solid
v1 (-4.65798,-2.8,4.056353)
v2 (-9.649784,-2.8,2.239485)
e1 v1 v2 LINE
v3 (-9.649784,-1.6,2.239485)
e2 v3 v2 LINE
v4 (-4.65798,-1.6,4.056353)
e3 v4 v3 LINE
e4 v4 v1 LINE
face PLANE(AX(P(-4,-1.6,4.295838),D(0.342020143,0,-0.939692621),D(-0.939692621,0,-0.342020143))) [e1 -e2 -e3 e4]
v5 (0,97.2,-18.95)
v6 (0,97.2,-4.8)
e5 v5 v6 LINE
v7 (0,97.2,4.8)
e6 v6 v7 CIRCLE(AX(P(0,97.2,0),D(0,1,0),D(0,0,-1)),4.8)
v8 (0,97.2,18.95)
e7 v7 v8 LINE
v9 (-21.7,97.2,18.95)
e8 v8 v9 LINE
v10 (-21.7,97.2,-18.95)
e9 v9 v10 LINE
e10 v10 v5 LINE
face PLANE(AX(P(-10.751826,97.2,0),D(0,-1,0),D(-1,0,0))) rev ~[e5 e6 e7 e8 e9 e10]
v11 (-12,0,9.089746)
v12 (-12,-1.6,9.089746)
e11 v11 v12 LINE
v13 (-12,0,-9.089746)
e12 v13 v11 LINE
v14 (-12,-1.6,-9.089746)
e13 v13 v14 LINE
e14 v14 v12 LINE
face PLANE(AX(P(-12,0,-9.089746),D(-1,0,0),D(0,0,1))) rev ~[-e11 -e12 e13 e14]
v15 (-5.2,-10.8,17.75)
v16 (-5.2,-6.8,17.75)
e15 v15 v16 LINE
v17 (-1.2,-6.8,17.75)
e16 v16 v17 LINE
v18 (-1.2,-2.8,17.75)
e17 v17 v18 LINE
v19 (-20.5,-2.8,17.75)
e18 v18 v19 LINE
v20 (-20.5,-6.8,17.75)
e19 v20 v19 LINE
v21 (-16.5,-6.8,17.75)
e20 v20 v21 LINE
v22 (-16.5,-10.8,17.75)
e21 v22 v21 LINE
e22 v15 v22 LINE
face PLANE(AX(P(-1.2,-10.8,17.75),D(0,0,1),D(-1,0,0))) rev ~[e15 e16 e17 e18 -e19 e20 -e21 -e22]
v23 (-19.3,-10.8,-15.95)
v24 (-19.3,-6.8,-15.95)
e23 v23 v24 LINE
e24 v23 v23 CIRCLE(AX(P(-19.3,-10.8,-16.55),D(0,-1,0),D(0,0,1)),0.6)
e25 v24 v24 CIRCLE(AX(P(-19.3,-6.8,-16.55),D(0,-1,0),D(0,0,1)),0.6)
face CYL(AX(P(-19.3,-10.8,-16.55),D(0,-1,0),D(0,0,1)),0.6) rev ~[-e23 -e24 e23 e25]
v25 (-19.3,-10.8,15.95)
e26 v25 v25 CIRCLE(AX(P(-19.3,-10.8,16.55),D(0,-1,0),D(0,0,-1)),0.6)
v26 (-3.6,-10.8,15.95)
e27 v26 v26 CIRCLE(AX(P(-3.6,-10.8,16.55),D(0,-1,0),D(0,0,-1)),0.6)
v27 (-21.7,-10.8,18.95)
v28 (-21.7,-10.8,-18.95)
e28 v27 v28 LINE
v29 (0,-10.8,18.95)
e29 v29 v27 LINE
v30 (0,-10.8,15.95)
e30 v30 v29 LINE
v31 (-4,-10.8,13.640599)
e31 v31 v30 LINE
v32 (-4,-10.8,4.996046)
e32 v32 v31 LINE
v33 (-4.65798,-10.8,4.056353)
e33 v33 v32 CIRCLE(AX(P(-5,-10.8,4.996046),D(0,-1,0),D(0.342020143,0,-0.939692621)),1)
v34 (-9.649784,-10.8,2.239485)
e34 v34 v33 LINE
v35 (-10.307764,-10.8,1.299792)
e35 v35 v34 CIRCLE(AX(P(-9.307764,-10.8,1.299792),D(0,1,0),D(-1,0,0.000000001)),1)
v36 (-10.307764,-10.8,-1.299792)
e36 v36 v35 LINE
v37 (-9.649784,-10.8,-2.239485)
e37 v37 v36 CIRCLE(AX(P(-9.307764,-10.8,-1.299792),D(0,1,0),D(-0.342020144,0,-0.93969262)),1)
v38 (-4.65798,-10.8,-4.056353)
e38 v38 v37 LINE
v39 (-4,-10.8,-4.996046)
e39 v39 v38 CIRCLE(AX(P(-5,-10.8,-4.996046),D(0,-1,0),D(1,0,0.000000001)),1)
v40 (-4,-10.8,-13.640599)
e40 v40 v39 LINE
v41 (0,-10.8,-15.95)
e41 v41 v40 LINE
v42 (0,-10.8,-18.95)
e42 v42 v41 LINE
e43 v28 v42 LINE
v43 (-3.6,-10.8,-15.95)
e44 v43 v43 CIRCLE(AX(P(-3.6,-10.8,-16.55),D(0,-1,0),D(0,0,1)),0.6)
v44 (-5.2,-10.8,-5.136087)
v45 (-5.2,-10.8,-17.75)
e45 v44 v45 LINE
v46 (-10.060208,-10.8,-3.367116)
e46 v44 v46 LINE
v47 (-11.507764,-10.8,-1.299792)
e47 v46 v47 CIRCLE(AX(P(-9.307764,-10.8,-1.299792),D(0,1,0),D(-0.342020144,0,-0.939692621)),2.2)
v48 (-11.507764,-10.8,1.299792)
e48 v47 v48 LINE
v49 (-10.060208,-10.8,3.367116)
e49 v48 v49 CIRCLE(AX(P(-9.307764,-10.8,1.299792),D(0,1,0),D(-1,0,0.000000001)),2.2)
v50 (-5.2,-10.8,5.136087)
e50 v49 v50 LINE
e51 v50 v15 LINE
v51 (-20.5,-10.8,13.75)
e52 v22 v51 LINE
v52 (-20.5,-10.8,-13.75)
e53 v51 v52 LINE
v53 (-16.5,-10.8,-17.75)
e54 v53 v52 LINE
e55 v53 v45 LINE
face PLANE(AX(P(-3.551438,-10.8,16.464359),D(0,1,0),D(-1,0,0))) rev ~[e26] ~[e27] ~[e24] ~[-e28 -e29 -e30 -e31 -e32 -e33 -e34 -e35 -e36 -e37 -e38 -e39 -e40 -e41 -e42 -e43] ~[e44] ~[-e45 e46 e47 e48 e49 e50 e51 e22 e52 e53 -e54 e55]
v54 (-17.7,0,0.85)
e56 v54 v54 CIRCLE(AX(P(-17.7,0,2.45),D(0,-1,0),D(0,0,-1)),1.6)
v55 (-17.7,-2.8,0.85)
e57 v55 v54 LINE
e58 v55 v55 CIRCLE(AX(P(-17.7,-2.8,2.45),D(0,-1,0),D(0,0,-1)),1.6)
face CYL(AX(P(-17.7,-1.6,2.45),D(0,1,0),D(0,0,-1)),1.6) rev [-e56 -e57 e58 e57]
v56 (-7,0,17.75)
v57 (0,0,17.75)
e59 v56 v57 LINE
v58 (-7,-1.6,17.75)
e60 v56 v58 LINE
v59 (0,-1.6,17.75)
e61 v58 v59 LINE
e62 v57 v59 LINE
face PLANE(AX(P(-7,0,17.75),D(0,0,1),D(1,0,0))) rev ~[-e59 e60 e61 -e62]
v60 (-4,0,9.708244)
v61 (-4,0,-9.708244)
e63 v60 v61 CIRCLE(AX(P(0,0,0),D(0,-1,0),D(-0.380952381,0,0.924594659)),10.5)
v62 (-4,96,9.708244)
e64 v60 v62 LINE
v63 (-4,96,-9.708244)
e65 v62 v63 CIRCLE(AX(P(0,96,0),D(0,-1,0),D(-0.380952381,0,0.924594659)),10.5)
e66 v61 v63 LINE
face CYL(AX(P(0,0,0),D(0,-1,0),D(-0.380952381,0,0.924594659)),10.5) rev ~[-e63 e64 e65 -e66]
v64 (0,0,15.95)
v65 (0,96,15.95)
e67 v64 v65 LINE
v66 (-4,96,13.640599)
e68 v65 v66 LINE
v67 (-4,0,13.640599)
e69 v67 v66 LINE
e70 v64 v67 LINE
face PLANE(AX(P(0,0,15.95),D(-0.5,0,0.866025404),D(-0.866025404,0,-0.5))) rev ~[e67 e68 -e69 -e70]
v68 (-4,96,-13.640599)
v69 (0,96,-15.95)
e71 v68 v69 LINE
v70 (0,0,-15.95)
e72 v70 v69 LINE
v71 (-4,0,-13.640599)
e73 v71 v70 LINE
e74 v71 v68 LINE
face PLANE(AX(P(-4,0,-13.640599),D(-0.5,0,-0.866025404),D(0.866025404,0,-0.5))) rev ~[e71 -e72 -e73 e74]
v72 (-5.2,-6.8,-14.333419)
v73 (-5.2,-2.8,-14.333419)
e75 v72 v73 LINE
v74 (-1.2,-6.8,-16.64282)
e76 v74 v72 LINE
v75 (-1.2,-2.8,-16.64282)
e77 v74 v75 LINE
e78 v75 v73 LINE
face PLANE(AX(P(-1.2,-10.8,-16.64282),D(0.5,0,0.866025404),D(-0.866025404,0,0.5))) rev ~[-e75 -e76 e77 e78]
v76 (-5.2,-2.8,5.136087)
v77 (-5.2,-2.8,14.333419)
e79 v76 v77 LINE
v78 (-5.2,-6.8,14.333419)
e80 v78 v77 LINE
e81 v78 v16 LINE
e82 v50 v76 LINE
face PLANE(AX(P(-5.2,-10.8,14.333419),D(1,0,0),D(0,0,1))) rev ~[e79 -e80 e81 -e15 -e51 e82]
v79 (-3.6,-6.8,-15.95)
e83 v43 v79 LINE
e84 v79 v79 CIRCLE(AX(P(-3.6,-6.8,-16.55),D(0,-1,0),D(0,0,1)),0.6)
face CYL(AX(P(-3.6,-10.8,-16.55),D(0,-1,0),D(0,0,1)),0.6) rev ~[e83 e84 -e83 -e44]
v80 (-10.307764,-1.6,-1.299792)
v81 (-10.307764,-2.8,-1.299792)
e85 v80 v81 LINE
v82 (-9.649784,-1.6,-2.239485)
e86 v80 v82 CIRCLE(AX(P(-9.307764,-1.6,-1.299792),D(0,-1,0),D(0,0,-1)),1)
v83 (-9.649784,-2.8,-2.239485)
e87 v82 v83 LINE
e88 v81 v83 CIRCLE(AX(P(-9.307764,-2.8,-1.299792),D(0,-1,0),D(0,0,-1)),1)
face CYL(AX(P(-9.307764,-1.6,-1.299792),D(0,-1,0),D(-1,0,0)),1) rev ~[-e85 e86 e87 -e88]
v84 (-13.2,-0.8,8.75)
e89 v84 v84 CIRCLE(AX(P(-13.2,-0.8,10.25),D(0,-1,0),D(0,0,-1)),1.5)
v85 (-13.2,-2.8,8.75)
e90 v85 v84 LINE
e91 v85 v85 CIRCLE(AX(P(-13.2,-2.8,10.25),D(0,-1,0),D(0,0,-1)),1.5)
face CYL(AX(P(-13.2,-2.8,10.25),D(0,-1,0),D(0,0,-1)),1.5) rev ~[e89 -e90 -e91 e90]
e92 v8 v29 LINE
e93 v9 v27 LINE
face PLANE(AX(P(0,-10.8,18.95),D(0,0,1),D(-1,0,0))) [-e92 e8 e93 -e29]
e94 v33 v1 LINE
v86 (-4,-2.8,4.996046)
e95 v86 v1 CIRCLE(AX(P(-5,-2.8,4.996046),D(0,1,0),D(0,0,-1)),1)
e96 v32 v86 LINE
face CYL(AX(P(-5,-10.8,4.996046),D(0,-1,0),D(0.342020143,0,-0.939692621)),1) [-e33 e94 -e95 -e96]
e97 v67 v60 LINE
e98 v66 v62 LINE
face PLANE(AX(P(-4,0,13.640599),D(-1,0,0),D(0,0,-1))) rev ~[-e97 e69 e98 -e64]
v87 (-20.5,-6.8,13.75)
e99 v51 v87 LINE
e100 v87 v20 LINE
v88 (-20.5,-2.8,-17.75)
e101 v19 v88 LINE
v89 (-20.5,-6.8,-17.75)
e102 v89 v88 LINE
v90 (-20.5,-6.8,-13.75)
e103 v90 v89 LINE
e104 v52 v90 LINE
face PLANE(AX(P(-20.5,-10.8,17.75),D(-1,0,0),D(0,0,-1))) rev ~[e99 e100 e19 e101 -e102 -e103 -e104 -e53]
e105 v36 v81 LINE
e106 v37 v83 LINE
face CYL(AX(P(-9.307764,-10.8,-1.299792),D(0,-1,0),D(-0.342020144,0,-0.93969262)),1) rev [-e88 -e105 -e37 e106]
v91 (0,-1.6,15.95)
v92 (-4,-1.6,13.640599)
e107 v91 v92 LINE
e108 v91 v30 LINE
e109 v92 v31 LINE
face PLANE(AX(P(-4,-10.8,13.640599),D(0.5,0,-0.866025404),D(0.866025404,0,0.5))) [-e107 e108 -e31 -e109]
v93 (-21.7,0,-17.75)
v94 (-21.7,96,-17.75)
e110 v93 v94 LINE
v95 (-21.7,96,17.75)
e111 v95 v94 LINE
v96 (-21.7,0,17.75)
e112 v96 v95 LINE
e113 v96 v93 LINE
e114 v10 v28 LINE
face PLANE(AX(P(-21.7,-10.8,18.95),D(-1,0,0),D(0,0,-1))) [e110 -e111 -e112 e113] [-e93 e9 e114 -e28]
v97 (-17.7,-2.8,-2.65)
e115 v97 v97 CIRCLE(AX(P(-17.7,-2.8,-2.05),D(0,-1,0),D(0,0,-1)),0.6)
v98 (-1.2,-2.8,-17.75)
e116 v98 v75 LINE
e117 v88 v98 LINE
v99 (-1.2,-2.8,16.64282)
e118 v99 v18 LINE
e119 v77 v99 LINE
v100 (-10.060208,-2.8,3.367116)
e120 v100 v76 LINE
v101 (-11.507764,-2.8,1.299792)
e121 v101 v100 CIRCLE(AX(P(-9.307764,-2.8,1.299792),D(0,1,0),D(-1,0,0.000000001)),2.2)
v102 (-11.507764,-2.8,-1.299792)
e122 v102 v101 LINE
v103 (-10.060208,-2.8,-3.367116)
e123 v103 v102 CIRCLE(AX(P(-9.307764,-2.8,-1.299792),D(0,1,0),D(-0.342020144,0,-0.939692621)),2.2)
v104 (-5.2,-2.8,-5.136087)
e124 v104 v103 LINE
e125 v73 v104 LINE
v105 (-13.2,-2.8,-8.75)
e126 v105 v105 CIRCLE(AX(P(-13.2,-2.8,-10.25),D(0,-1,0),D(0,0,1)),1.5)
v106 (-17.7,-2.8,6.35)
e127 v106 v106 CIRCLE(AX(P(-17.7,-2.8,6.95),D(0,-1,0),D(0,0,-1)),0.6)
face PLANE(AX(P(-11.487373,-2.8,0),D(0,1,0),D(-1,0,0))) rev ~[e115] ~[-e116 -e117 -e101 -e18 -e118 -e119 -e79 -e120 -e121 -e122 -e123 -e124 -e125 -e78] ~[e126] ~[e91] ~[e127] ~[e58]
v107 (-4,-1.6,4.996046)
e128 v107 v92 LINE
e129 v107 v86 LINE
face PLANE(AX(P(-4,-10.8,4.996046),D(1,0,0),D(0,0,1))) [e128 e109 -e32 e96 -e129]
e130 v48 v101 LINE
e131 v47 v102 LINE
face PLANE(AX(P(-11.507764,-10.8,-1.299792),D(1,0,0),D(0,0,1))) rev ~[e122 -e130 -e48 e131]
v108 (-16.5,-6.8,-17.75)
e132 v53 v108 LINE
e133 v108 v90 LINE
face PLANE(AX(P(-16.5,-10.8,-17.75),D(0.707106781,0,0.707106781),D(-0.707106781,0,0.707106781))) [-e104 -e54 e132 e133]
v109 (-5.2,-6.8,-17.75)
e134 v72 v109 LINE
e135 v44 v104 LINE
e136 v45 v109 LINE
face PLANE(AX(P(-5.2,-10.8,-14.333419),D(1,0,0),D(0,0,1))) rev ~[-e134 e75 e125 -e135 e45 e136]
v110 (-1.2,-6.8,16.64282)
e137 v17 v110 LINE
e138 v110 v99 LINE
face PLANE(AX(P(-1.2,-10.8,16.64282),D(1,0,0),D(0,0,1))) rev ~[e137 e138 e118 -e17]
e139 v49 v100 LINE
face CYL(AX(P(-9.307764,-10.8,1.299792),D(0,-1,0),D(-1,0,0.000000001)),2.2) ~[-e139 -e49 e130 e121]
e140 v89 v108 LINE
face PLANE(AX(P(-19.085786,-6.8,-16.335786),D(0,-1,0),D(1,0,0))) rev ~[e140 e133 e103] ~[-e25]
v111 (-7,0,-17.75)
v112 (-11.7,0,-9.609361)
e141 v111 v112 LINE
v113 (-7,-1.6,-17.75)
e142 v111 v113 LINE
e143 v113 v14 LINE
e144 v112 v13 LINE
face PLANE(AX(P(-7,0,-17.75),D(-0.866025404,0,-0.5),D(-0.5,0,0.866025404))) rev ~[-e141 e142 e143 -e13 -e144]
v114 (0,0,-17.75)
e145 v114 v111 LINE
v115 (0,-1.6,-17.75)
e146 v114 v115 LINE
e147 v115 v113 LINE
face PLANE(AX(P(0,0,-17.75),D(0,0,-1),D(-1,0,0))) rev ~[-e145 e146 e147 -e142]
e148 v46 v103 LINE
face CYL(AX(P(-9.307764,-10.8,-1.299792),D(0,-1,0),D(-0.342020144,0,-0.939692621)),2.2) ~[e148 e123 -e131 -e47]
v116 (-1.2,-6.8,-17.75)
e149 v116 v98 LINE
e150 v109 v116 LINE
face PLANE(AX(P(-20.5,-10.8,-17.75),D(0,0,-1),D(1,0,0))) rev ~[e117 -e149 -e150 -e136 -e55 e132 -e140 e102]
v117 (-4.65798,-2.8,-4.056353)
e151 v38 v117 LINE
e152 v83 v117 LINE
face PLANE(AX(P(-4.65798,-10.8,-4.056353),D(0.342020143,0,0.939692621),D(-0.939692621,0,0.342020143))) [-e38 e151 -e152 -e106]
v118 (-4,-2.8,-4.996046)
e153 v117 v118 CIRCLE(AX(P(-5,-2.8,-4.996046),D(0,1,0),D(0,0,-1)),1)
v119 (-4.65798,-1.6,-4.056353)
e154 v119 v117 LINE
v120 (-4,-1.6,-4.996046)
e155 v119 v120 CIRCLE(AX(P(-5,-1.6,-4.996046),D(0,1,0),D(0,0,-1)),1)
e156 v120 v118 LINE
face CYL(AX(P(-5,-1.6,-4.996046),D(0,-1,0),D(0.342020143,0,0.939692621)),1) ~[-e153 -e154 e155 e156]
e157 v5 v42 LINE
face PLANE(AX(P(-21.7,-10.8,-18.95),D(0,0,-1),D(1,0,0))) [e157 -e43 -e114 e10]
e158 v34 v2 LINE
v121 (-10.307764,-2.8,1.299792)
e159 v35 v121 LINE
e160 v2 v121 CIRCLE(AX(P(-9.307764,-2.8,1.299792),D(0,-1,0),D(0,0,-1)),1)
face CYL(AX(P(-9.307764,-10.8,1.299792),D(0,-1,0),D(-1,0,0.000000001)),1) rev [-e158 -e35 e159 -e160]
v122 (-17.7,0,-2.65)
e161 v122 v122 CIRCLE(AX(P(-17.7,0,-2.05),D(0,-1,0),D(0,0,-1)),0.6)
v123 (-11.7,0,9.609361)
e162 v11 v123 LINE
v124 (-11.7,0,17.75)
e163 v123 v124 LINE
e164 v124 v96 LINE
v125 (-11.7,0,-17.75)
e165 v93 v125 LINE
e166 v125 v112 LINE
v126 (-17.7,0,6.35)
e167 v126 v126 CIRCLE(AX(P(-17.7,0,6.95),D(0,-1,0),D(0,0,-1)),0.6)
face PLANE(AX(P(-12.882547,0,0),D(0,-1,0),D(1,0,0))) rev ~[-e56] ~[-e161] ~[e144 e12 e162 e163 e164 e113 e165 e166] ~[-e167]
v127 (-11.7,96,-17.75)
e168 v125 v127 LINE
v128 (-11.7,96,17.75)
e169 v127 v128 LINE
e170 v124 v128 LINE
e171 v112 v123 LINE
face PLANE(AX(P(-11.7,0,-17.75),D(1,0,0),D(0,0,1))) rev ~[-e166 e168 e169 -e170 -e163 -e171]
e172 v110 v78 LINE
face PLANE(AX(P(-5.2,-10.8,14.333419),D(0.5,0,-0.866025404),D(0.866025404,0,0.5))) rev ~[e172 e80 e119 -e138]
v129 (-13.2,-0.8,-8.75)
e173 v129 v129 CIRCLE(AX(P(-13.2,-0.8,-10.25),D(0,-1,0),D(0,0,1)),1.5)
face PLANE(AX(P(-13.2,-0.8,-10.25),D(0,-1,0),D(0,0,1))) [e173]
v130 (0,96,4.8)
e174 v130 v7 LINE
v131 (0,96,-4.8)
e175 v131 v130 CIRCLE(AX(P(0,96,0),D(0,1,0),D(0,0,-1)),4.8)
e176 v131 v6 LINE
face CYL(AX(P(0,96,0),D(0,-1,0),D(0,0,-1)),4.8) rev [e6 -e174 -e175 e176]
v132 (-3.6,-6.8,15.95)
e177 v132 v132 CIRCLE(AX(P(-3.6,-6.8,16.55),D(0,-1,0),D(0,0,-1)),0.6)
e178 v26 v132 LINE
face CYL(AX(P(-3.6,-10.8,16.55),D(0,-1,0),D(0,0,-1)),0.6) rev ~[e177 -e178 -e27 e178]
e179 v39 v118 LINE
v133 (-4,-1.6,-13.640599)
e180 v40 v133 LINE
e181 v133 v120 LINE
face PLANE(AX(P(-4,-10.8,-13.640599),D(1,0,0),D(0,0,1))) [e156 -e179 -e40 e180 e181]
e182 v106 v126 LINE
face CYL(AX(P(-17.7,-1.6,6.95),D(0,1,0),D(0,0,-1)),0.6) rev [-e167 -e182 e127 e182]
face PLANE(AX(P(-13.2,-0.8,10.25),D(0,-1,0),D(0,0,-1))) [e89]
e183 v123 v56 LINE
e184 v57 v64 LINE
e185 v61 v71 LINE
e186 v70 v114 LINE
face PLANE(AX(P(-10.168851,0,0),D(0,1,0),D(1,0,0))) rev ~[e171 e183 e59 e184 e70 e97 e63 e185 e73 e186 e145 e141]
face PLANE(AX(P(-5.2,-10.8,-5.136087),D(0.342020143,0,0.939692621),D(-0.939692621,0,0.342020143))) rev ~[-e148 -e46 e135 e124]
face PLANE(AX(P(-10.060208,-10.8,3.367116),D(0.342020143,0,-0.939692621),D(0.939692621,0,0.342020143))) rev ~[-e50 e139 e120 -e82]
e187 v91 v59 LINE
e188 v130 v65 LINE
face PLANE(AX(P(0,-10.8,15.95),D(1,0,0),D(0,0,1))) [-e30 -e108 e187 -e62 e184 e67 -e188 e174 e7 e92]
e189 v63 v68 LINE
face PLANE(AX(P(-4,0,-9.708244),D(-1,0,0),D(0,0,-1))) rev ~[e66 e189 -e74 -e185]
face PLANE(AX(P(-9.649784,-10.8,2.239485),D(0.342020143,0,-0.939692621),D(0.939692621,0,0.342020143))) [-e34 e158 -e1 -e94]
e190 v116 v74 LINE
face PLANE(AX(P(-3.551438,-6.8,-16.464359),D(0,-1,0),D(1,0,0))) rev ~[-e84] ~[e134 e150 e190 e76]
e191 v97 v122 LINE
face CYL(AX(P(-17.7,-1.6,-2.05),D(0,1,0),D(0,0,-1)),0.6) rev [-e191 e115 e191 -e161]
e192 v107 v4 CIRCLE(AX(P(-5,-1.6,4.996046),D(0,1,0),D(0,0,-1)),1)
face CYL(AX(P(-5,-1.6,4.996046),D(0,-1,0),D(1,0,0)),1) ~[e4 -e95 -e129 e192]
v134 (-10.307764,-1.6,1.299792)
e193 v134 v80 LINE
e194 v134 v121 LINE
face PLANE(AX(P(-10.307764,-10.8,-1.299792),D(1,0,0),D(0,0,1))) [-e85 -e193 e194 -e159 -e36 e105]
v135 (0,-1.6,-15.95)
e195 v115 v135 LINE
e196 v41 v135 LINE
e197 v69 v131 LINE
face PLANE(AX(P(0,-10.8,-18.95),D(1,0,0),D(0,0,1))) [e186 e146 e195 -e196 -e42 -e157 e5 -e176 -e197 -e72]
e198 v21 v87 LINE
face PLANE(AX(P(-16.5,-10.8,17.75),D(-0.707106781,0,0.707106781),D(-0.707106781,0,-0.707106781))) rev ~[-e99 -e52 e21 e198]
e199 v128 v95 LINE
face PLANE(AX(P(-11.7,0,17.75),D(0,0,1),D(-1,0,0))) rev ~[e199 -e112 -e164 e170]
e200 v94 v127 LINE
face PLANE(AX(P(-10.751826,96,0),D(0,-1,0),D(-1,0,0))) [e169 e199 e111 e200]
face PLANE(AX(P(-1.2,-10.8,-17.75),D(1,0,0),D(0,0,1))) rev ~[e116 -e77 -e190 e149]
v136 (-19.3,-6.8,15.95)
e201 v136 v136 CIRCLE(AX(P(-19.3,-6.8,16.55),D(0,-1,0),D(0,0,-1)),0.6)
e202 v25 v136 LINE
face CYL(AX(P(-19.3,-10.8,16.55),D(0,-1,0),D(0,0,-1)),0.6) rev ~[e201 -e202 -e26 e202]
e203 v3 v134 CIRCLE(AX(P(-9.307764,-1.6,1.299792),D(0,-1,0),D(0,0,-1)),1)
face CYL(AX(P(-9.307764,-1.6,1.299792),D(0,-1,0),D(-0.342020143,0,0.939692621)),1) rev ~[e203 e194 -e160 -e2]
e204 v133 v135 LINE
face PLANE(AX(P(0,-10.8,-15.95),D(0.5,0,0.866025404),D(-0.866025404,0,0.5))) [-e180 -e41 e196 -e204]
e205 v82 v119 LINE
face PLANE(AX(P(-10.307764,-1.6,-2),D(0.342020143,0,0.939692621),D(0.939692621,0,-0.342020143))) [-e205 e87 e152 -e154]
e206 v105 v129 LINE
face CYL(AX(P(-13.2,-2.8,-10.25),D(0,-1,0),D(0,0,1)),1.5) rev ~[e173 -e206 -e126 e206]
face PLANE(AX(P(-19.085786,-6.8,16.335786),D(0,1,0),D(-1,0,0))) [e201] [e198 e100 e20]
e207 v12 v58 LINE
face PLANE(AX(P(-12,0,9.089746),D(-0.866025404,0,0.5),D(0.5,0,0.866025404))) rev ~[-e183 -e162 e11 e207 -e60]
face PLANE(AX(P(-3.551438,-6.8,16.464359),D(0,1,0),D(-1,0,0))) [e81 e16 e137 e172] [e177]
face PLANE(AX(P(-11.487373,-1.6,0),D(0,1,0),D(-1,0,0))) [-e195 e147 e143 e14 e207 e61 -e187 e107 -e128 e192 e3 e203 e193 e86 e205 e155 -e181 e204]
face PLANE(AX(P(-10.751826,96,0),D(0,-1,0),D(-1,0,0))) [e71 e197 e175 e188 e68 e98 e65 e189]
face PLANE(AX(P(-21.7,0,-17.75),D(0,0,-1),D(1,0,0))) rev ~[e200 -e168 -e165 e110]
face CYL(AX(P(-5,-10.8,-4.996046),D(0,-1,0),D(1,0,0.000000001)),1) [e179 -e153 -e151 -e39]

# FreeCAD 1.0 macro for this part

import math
import FreeCAD as App
import Part
import Sketcher

V = App.Vector
Q = App.Units.Quantity


def edges_at(feature, points):
    """Names of the edges that pass closest to the given points."""
    edges = feature.Shape.Edges
    near = lambda p: min(range(len(edges)), key=lambda i: edges[i].distToShape(Part.Vertex(*p))[0])
    return sorted({f"Edge{near(p) + 1}" for p in points})


def add_polygon(sketch, points):
    """Adds a closed chain of lines whose ends are joined by coincident constraints."""
    first, n = sketch.GeometryCount, len(points)
    for a, b in zip(points, points[1:] + points[:1]):
        sketch.addGeometry(Part.LineSegment(App.Vector(*a, 0), App.Vector(*b, 0)), False)
    for i in range(n):
        sketch.addConstraint(Sketcher.Constraint("Coincident", first + i, 2, first + (i + 1) % n, 1))

doc = App.newDocument("Part")
body = doc.addObject("PartDesign::Body", "Body")

sketch1 = body.newObject("Sketcher::SketchObject", "Sketch")
sketch1.AttachmentSupport = (doc.getObject("XZ_Plane"), [""])
sketch1.MapMode = "FlatFace"
sketch1.addGeometry(Part.LineSegment(V(0, 18.9, 0), V(0, 15.9, 0)), False)
sketch1.addGeometry(Part.LineSegment(V(0, 15.9, 0), V(-4, 13.6, 0)), False)
sketch1.addGeometry(Part.LineSegment(V(-4, 13.6, 0), V(-4, 9.7, 0)), False)
sketch1.addGeometry(Part.ArcOfCircle(Part.Circle(V(0, 0, 0), V(0, 0, 1), 10.5), math.radians(112), math.radians(248)), False)
sketch1.addGeometry(Part.LineSegment(V(-4, -9.7, 0), V(-4, -13.6, 0)), False)
sketch1.addGeometry(Part.LineSegment(V(-4, -13.6, 0), V(0, -15.9, 0)), False)
sketch1.addGeometry(Part.LineSegment(V(0, -15.9, 0), V(0, -18.9, 0)), False)
sketch1.addGeometry(Part.LineSegment(V(0, -18.9, 0), V(-21.7, -18.9, 0)), False)
sketch1.addGeometry(Part.LineSegment(V(-21.7, -18.9, 0), V(-21.7, -17.8, 0)), False)
sketch1.addGeometry(Part.LineSegment(V(-21.7, -17.8, 0), V(-11.7, -17.8, 0)), False)
sketch1.addGeometry(Part.LineSegment(V(-11.7, -17.8, 0), V(-11.7, 17.8, 0)), False)
sketch1.addGeometry(Part.LineSegment(V(-11.7, 17.8, 0), V(-21.7, 17.8, 0)), False)
sketch1.addGeometry(Part.LineSegment(V(-21.7, 17.8, 0), V(-21.7, 18.9, 0)), False)
sketch1.addGeometry(Part.LineSegment(V(-21.7, 18.9, 0), V(0, 18.9, 0)), False)
sketch1.addConstraint(Sketcher.Constraint("Coincident", 0, 2, 1, 1))
sketch1.addConstraint(Sketcher.Constraint("Coincident", 1, 2, 2, 1))
sketch1.addConstraint(Sketcher.Constraint("Coincident", 2, 2, 3, 1))
sketch1.addConstraint(Sketcher.Constraint("Coincident", 3, 2, 4, 1))
sketch1.addConstraint(Sketcher.Constraint("Coincident", 4, 2, 5, 1))
sketch1.addConstraint(Sketcher.Constraint("Coincident", 5, 2, 6, 1))
sketch1.addConstraint(Sketcher.Constraint("Coincident", 6, 2, 7, 1))
sketch1.addConstraint(Sketcher.Constraint("Coincident", 7, 2, 8, 1))
sketch1.addConstraint(Sketcher.Constraint("Coincident", 8, 2, 9, 1))
sketch1.addConstraint(Sketcher.Constraint("Coincident", 9, 2, 10, 1))
sketch1.addConstraint(Sketcher.Constraint("Coincident", 10, 2, 11, 1))
sketch1.addConstraint(Sketcher.Constraint("Coincident", 11, 2, 12, 1))
sketch1.addConstraint(Sketcher.Constraint("Coincident", 12, 2, 13, 1))
sketch1.addConstraint(Sketcher.Constraint("Coincident", 13, 2, 0, 1))
sketch1.addConstraint(Sketcher.Constraint("Vertical", 0))
sketch1.addConstraint(Sketcher.Constraint("Vertical", 2))
sketch1.addConstraint(Sketcher.Constraint("Vertical", 4))
sketch1.addConstraint(Sketcher.Constraint("Vertical", 6))
sketch1.addConstraint(Sketcher.Constraint("Horizontal", 7))
sketch1.addConstraint(Sketcher.Constraint("Vertical", 8))
sketch1.addConstraint(Sketcher.Constraint("Horizontal", 9))
sketch1.addConstraint(Sketcher.Constraint("Vertical", 10))
sketch1.addConstraint(Sketcher.Constraint("Horizontal", 11))
sketch1.addConstraint(Sketcher.Constraint("Vertical", 12))
sketch1.addConstraint(Sketcher.Constraint("Horizontal", 13))
sketch1.addConstraint(Sketcher.Constraint("Coincident", 3, 3, -1, 1))
sketch1.addConstraint(Sketcher.Constraint("Symmetric", 0, 2, 5, 2, -1, 1))
sketch1.addConstraint(Sketcher.Constraint("Symmetric", 1, 2, 4, 2, -1))
sketch1.addConstraint(Sketcher.Constraint("Symmetric", 8, 2, 11, 2, -1))
sketch1.addConstraint(Sketcher.Constraint("Symmetric", 6, 2, 13, 2, -1))
sketch1.addConstraint(Sketcher.Constraint("Radius", 3, 10.5))
sketch1.addConstraint(Sketcher.Constraint("DistanceX", 9, 1, 9, 2, 10.0))
sketch1.addConstraint(Sketcher.Constraint("DistanceY", 0, 2, 0, 1, 3.0))
sketch1.addConstraint(Sketcher.Constraint("Angle", 1, Q("-150 deg")))
sketch1.addConstraint(Sketcher.Constraint("DistanceX", 7, 2, 7, 1, 21.7))
sketch1.addConstraint(Sketcher.Constraint("DistanceY", 8, 1, 8, 2, 1.2))
sketch1.addConstraint(Sketcher.Constraint("DistanceY", 10, 1, 10, 2, 35.5))
sketch1.addConstraint(Sketcher.Constraint("DistanceX", 1, 2, -1, 1, 4.0))
pad1 = body.newObject("PartDesign::Pad", "Pad")
pad1.Profile = sketch1
pad1.Length = 96
pad1.Reversed = True

sketch2 = body.newObject("Sketcher::SketchObject", "Sketch001")
sketch2.AttachmentSupport = (doc.getObject("XZ_Plane"), [""])
sketch2.MapMode = "FlatFace"
sketch2.AttachmentOffset = App.Placement(V(0, 0, -96), App.Rotation())
sketch2.addGeometry(Part.LineSegment(V(0, 18.9, 0), V(0, 4.8, 0)), False)
sketch2.addGeometry(Part.ArcOfCircle(Part.Circle(V(0, 0, 0), V(0, 0, 1), 4.8), math.radians(90), math.radians(270)), False)
sketch2.addGeometry(Part.LineSegment(V(0, -4.8, 0), V(0, -18.9, 0)), False)
sketch2.addGeometry(Part.LineSegment(V(0, -18.9, 0), V(-21.7, -18.9, 0)), False)
sketch2.addGeometry(Part.LineSegment(V(-21.7, -18.9, 0), V(-21.7, 18.9, 0)), False)
sketch2.addGeometry(Part.LineSegment(V(-21.7, 18.9, 0), V(0, 18.9, 0)), False)
sketch2.addConstraint(Sketcher.Constraint("Coincident", 0, 2, 1, 1))
sketch2.addConstraint(Sketcher.Constraint("Coincident", 1, 2, 2, 1))
sketch2.addConstraint(Sketcher.Constraint("Coincident", 2, 2, 3, 1))
sketch2.addConstraint(Sketcher.Constraint("Coincident", 3, 2, 4, 1))
sketch2.addConstraint(Sketcher.Constraint("Coincident", 4, 2, 5, 1))
sketch2.addConstraint(Sketcher.Constraint("Coincident", 5, 2, 0, 1))
sketch2.addConstraint(Sketcher.Constraint("Vertical", 0))
sketch2.addConstraint(Sketcher.Constraint("Vertical", 2))
sketch2.addConstraint(Sketcher.Constraint("Horizontal", 3))
sketch2.addConstraint(Sketcher.Constraint("Vertical", 4))
sketch2.addConstraint(Sketcher.Constraint("Horizontal", 5))
sketch2.addConstraint(Sketcher.Constraint("Coincident", 1, 3, -1, 1))
sketch2.addConstraint(Sketcher.Constraint("Symmetric", 2, 2, 5, 2, -1, 1))
sketch2.addConstraint(Sketcher.Constraint("PointOnObject", 0, 2, -2))
sketch2.addConstraint(Sketcher.Constraint("Radius", 1, 4.8))
sketch2.addConstraint(Sketcher.Constraint("DistanceX", 3, 2, 3, 1, 21.7))
sketch2.addConstraint(Sketcher.Constraint("DistanceY", 4, 1, 4, 2, 37.9))
pad2 = body.newObject("PartDesign::Pad", "Pad001")
pad2.Profile = sketch2
pad2.Length = 1.2
pad2.Reversed = True

sketch3 = body.newObject("Sketcher::SketchObject", "Sketch002")
sketch3.AttachmentSupport = (doc.getObject("XZ_Plane"), [""])
sketch3.MapMode = "FlatFace"
add_polygon(sketch3, [(0, -18.9), (0, -17.8), (-7, -17.8), (-12, -9.1), (-12, 9.1), (-7, 17.8), (0, 17.8), (0, 18.9), (-21.7, 18.9), (-21.7, -18.9)])
sketch3.addGeometry(Part.Circle(V(-17.7, -2, 0), V(0, 0, 1), 0.6), False)
sketch3.addGeometry(Part.Circle(V(-17.7, 2.5, 0), V(0, 0, 1), 1.6), False)
sketch3.addGeometry(Part.Circle(V(-17.7, 7, 0), V(0, 0, 1), 0.6), False)
sketch3.addConstraint(Sketcher.Constraint("Vertical", 0))
sketch3.addConstraint(Sketcher.Constraint("Horizontal", 1))
sketch3.addConstraint(Sketcher.Constraint("Vertical", 3))
sketch3.addConstraint(Sketcher.Constraint("Horizontal", 5))
sketch3.addConstraint(Sketcher.Constraint("Vertical", 6))
sketch3.addConstraint(Sketcher.Constraint("Horizontal", 7))
sketch3.addConstraint(Sketcher.Constraint("Vertical", 8))
sketch3.addConstraint(Sketcher.Constraint("Horizontal", 9))
sketch3.addConstraint(Sketcher.Constraint("Equal", 10, 12))
sketch3.addConstraint(Sketcher.Constraint("Symmetric", 0, 2, 5, 2, -1, 1))
sketch3.addConstraint(Sketcher.Constraint("Symmetric", 6, 2, 9, 2, -1))
sketch3.addConstraint(Sketcher.Constraint("Vertical", 10, 3, 11, 3))
sketch3.addConstraint(Sketcher.Constraint("Vertical", 11, 3, 12, 3))
sketch3.addConstraint(Sketcher.Constraint("Vertical", 1, 2, 4, 2))
sketch3.addConstraint(Sketcher.Constraint("Equal", 2, 4))
sketch3.addConstraint(Sketcher.Constraint("Diameter", 10, 1.2))
sketch3.addConstraint(Sketcher.Constraint("Diameter", 11, 3.2))
sketch3.addConstraint(Sketcher.Constraint("DistanceX", 1, 2, 1, 1, 7.0))
sketch3.addConstraint(Sketcher.Constraint("Angle", 2, Q("120 deg")))
sketch3.addConstraint(Sketcher.Constraint("Distance", 2, 10.0))
sketch3.addConstraint(Sketcher.Constraint("DistanceX", 7, 2, 7, 1, 21.7))
sketch3.addConstraint(Sketcher.Constraint("DistanceY", 0, 1, 0, 2, 1.2))
sketch3.addConstraint(Sketcher.Constraint("DistanceY", 8, 2, 8, 1, 37.9))
sketch3.addConstraint(Sketcher.Constraint("DistanceY", 10, 3, 12, 3, 9.0))
sketch3.addConstraint(Sketcher.Constraint("DistanceY", 12, 3, 6, 2, 12.0))
sketch3.addConstraint(Sketcher.Constraint("DistanceX", 7, 2, 12, 3, 4.0))
sketch3.addConstraint(Sketcher.Constraint("DistanceY", 10, 3, 11, 3, 4.5))
pad3 = body.newObject("PartDesign::Pad", "Pad002")
pad3.Profile = sketch3
pad3.Length = 1.6

sketch4 = body.newObject("Sketcher::SketchObject", "Sketch003")
sketch4.AttachmentSupport = (doc.getObject("XZ_Plane"), [""])
sketch4.MapMode = "FlatFace"
sketch4.AttachmentOffset = App.Placement(V(0, 0, 1.6), App.Rotation())
add_polygon(sketch4, [(0, -18.9), (0, -15.9), (-4, -13.6), (-4, -4.3), (-10.3, -2), (-10.3, 2), (-4, 4.3), (-4, 13.6), (0, 15.9), (0, 18.9), (-21.7, 18.9), (-21.7, -18.9)])
sketch4.addGeometry(Part.Circle(V(-17.7, -2, 0), V(0, 0, 1), 0.6), False)
sketch4.addGeometry(Part.Circle(V(-17.7, 2.5, 0), V(0, 0, 1), 1.6), False)
sketch4.addGeometry(Part.Circle(V(-17.7, 7, 0), V(0, 0, 1), 0.6), False)
sketch4.addConstraint(Sketcher.Constraint("Vertical", 0))
sketch4.addConstraint(Sketcher.Constraint("Vertical", 2))
sketch4.addConstraint(Sketcher.Constraint("Vertical", 4))
sketch4.addConstraint(Sketcher.Constraint("Vertical", 6))
sketch4.addConstraint(Sketcher.Constraint("Vertical", 8))
sketch4.addConstraint(Sketcher.Constraint("Horizontal", 9))
sketch4.addConstraint(Sketcher.Constraint("Vertical", 10))
sketch4.addConstraint(Sketcher.Constraint("Horizontal", 11))
sketch4.addConstraint(Sketcher.Constraint("Equal", 12, 14))
sketch4.addConstraint(Sketcher.Constraint("Symmetric", 0, 2, 7, 2, -1, 1))
sketch4.addConstraint(Sketcher.Constraint("Symmetric", 2, 2, 5, 2, -1))
sketch4.addConstraint(Sketcher.Constraint("Symmetric", 8, 2, 11, 2, -1))
sketch4.addConstraint(Sketcher.Constraint("Vertical", 12, 3, 13, 3))
sketch4.addConstraint(Sketcher.Constraint("Vertical", 13, 3, 14, 3))
sketch4.addConstraint(Sketcher.Constraint("Equal", 2, 6))
sketch4.addConstraint(Sketcher.Constraint("Equal", 3, 5))
sketch4.addConstraint(Sketcher.Constraint("Diameter", 12, 1.2))
sketch4.addConstraint(Sketcher.Constraint("Diameter", 13, 3.2))
sketch4.addConstraint(Sketcher.Constraint("DistanceY", 0, 1, 0, 2, 3.0))
sketch4.addConstraint(Sketcher.Constraint("DistanceY", 4, 1, 4, 2, 4.0))
sketch4.addConstraint(Sketcher.Constraint("Angle", 1, Q("150 deg")))
sketch4.addConstraint(Sketcher.Constraint("Angle", 3, Q("160 deg")))
sketch4.addConstraint(Sketcher.Constraint("DistanceX", 9, 2, 9, 1, 21.7))
sketch4.addConstraint(Sketcher.Constraint("DistanceY", 10, 2, 10, 1, 37.9))
sketch4.addConstraint(Sketcher.Constraint("DistanceX", 1, 2, -1, 1, 4.0))
sketch4.addConstraint(Sketcher.Constraint("DistanceY", 12, 3, 14, 3, 9.0))
sketch4.addConstraint(Sketcher.Constraint("DistanceY", 14, 3, 7, 2, 9.0))
sketch4.addConstraint(Sketcher.Constraint("DistanceX", 9, 2, 14, 3, 4.0))
sketch4.addConstraint(Sketcher.Constraint("DistanceY", 12, 3, 13, 3, 4.5))
sketch4.addConstraint(Sketcher.Constraint("DistanceY", 2, 1, 2, 2, 9.344761))
pad4 = body.newObject("PartDesign::Pad", "Pad003")
pad4.Profile = sketch4
pad4.Length = 1.2
doc.recompute()

fillet = body.newObject("PartDesign::Fillet", "Fillet")
fillet.Base = (pad4, edges_at(pad4, [
    (-4, -2.2, -4.296),
    (-10.308, -2.2, -2),
    (-10.308, -2.2, 2),
    (-4, -2.2, 4.296),
]))
fillet.Radius = 1

sketch5 = body.newObject("Sketcher::SketchObject", "Sketch004")
sketch5.AttachmentSupport = (doc.getObject("XZ_Plane"), [""])
sketch5.MapMode = "FlatFace"
sketch5.AttachmentOffset = App.Placement(V(0, 0, 2.8), App.Rotation())
sketch5.addGeometry(Part.Circle(V(-13.2, 10.2, 0), V(0, 0, 1), 1.5), False)
sketch5.addConstraint(Sketcher.Constraint("Diameter", 0, 3.0))
sketch5.addConstraint(Sketcher.Constraint("DistanceX", 0, 3, -1, 1, 13.2))
sketch5.addConstraint(Sketcher.Constraint("DistanceY", -1, 1, 0, 3, 10.25))
pocket1 = body.newObject("PartDesign::Pocket", "Pocket")
pocket1.Profile = sketch5
pocket1.Length = 2

sketch6 = body.newObject("Sketcher::SketchObject", "Sketch005")
sketch6.AttachmentSupport = (doc.getObject("XZ_Plane"), [""])
sketch6.MapMode = "FlatFace"
sketch6.AttachmentOffset = App.Placement(V(0, 0, 2.8), App.Rotation())
sketch6.addGeometry(Part.Circle(V(-13.2, -10.2, 0), V(0, 0, 1), 1.5), False)
sketch6.addConstraint(Sketcher.Constraint("Diameter", 0, 3.0))
sketch6.addConstraint(Sketcher.Constraint("DistanceX", 0, 3, -1, 1, 13.2))
sketch6.addConstraint(Sketcher.Constraint("DistanceY", 0, 3, -1, 1, 10.25))
pocket2 = body.newObject("PartDesign::Pocket", "Pocket001")
pocket2.Profile = sketch6
pocket2.Length = 2

sketch7 = body.newObject("Sketcher::SketchObject", "Sketch006")
sketch7.AttachmentSupport = (doc.getObject("XZ_Plane"), [""])
sketch7.MapMode = "FlatFace"
sketch7.AttachmentOffset = App.Placement(V(0, 0, 10.8), App.Rotation())
sketch7.addGeometry(Part.LineSegment(V(-9.6, 2.2, 0), V(-4.7, 4.1, 0)), False)
sketch7.addGeometry(Part.ArcOfCircle(Part.Circle(V(-5, 5, 0), V(0, 0, 1), 1), math.radians(-70), math.radians(0)), False)
sketch7.addGeometry(Part.LineSegment(V(-4, 5, 0), V(-4, 13.6, 0)), False)
sketch7.addGeometry(Part.LineSegment(V(-4, 13.6, 0), V(0, 15.9, 0)), False)
sketch7.addGeometry(Part.LineSegment(V(0, 15.9, 0), V(0, 18.9, 0)), False)
sketch7.addGeometry(Part.LineSegment(V(0, 18.9, 0), V(-21.7, 18.9, 0)), False)
sketch7.addGeometry(Part.LineSegment(V(-21.7, 18.9, 0), V(-21.7, -18.9, 0)), False)
sketch7.addGeometry(Part.LineSegment(V(-21.7, -18.9, 0), V(0, -18.9, 0)), False)
sketch7.addGeometry(Part.LineSegment(V(0, -18.9, 0), V(0, -15.9, 0)), False)
sketch7.addGeometry(Part.LineSegment(V(0, -15.9, 0), V(-4, -13.6, 0)), False)
sketch7.addGeometry(Part.LineSegment(V(-4, -13.6, 0), V(-4, -5, 0)), False)
sketch7.addGeometry(Part.ArcOfCircle(Part.Circle(V(-5, -5, 0), V(0, 0, 1), 1), math.radians(0), math.radians(70)), False)
sketch7.addGeometry(Part.LineSegment(V(-4.7, -4.1, 0), V(-9.6, -2.2, 0)), False)
sketch7.addGeometry(Part.ArcOfCircle(Part.Circle(V(-9.3, -1.3, 0), V(0, 0, 1), 1), math.radians(-180), math.radians(-110)), False)
sketch7.addGeometry(Part.LineSegment(V(-10.3, -1.3, 0), V(-10.3, 1.3, 0)), False)
sketch7.addGeometry(Part.ArcOfCircle(Part.Circle(V(-9.3, 1.3, 0), V(0, 0, 1), 1), math.radians(110), math.radians(180)), False)
sketch7.addGeometry(Part.LineSegment(V(-1.2, 17.8, 0), V(-1.2, 16.6, 0)), False)
sketch7.addGeometry(Part.LineSegment(V(-1.2, 16.6, 0), V(-5.2, 14.3, 0)), False)
sketch7.addGeometry(Part.LineSegment(V(-5.2, 14.3, 0), V(-5.2, 5.1, 0)), False)
sketch7.addGeometry(Part.LineSegment(V(-5.2, 5.1, 0), V(-10.1, 3.4, 0)), False)
sketch7.addGeometry(Part.ArcOfCircle(Part.Circle(V(-9.3, 1.3, 0), V(0, 0, 1), 2.2), math.radians(110), math.radians(180)), False)
sketch7.addGeometry(Part.LineSegment(V(-11.5, 1.3, 0), V(-11.5, -1.3, 0)), False)
sketch7.addGeometry(Part.ArcOfCircle(Part.Circle(V(-9.3, -1.3, 0), V(0, 0, 1), 2.2), math.radians(-180), math.radians(-110)), False)
sketch7.addGeometry(Part.LineSegment(V(-10.1, -3.4, 0), V(-5.2, -5.1, 0)), False)
sketch7.addGeometry(Part.LineSegment(V(-5.2, -5.1, 0), V(-5.2, -14.3, 0)), False)
sketch7.addGeometry(Part.LineSegment(V(-5.2, -14.3, 0), V(-1.2, -16.6, 0)), False)
sketch7.addGeometry(Part.LineSegment(V(-1.2, -16.6, 0), V(-1.2, -17.8, 0)), False)
sketch7.addGeometry(Part.LineSegment(V(-1.2, -17.8, 0), V(-20.5, -17.8, 0)), False)
sketch7.addGeometry(Part.LineSegment(V(-20.5, -17.8, 0), V(-20.5, 17.8, 0)), False)
sketch7.addGeometry(Part.LineSegment(V(-20.5, 17.8, 0), V(-1.2, 17.8, 0)), False)
sketch7.addConstraint(Sketcher.Constraint("Tangent", 0, 2, 1, 1))
sketch7.addConstraint(Sketcher.Constraint("Tangent", 1, 2, 2, 1))
sketch7.addConstraint(Sketcher.Constraint("Coincident", 2, 2, 3, 1))
sketch7.addConstraint(Sketcher.Constraint("Coincident", 3, 2, 4, 1))
sketch7.addConstraint(Sketcher.Constraint("Coincident", 4, 2, 5, 1))
sketch7.addConstraint(Sketcher.Constraint("Coincident", 5, 2, 6, 1))
sketch7.addConstraint(Sketcher.Constraint("Coincident", 6, 2, 7, 1))
sketch7.addConstraint(Sketcher.Constraint("Coincident", 7, 2, 8, 1))
sketch7.addConstraint(Sketcher.Constraint("Coincident", 8, 2, 9, 1))
sketch7.addConstraint(Sketcher.Constraint("Coincident", 9, 2, 10, 1))
sketch7.addConstraint(Sketcher.Constraint("Tangent", 10, 2, 11, 1))
sketch7.addConstraint(Sketcher.Constraint("Tangent", 11, 2, 12, 1))
sketch7.addConstraint(Sketcher.Constraint("Tangent", 12, 2, 13, 2))
sketch7.addConstraint(Sketcher.Constraint("Tangent", 13, 1, 14, 1))
sketch7.addConstraint(Sketcher.Constraint("Tangent", 14, 2, 15, 2))
sketch7.addConstraint(Sketcher.Constraint("Tangent", 15, 1, 0, 1))
sketch7.addConstraint(Sketcher.Constraint("Coincident", 16, 2, 17, 1))
sketch7.addConstraint(Sketcher.Constraint("Coincident", 17, 2, 18, 1))
sketch7.addConstraint(Sketcher.Constraint("Coincident", 18, 2, 19, 1))
sketch7.addConstraint(Sketcher.Constraint("Tangent", 19, 2, 20, 1))
sketch7.addConstraint(Sketcher.Constraint("Tangent", 20, 2, 21, 1))
sketch7.addConstraint(Sketcher.Constraint("Tangent", 21, 2, 22, 1))
sketch7.addConstraint(Sketcher.Constraint("Tangent", 22, 2, 23, 1))
sketch7.addConstraint(Sketcher.Constraint("Coincident", 23, 2, 24, 1))
sketch7.addConstraint(Sketcher.Constraint("Coincident", 24, 2, 25, 1))
sketch7.addConstraint(Sketcher.Constraint("Coincident", 25, 2, 26, 1))
sketch7.addConstraint(Sketcher.Constraint("Coincident", 26, 2, 27, 1))
sketch7.addConstraint(Sketcher.Constraint("Coincident", 27, 2, 28, 1))
sketch7.addConstraint(Sketcher.Constraint("Coincident", 28, 2, 29, 1))
sketch7.addConstraint(Sketcher.Constraint("Coincident", 29, 2, 16, 1))
sketch7.addConstraint(Sketcher.Constraint("Vertical", 2))
sketch7.addConstraint(Sketcher.Constraint("Vertical", 4))
sketch7.addConstraint(Sketcher.Constraint("Horizontal", 5))
sketch7.addConstraint(Sketcher.Constraint("Vertical", 6))
sketch7.addConstraint(Sketcher.Constraint("Horizontal", 7))
sketch7.addConstraint(Sketcher.Constraint("Vertical", 8))
sketch7.addConstraint(Sketcher.Constraint("Vertical", 10))
sketch7.addConstraint(Sketcher.Constraint("Vertical", 14))
sketch7.addConstraint(Sketcher.Constraint("Vertical", 16))
sketch7.addConstraint(Sketcher.Constraint("Vertical", 18))
sketch7.addConstraint(Sketcher.Constraint("Vertical", 21))
sketch7.addConstraint(Sketcher.Constraint("Vertical", 24))
sketch7.addConstraint(Sketcher.Constraint("Vertical", 26))
sketch7.addConstraint(Sketcher.Constraint("Horizontal", 27))
sketch7.addConstraint(Sketcher.Constraint("Vertical", 28))
sketch7.addConstraint(Sketcher.Constraint("Horizontal", 29))
sketch7.addConstraint(Sketcher.Constraint("Coincident", 20, 3, 15, 3))
sketch7.addConstraint(Sketcher.Constraint("Coincident", 22, 3, 13, 3))
sketch7.addConstraint(Sketcher.Constraint("Equal", 1, 11))
sketch7.addConstraint(Sketcher.Constraint("Equal", 11, 13))
sketch7.addConstraint(Sketcher.Constraint("Equal", 13, 15))
sketch7.addConstraint(Sketcher.Constraint("Symmetric", 4, 2, 7, 2, -1, 1))
sketch7.addConstraint(Sketcher.Constraint("Symmetric", 1, 3, 11, 3, -1))
sketch7.addConstraint(Sketcher.Constraint("Symmetric", 3, 2, 8, 2, -1))
sketch7.addConstraint(Sketcher.Constraint("Symmetric", 19, 2, 22, 2, -1))
sketch7.addConstraint(Sketcher.Constraint("Symmetric", 17, 2, 24, 2, -1))
sketch7.addConstraint(Sketcher.Constraint("Symmetric", 16, 2, 25, 2, -1))
sketch7.addConstraint(Sketcher.Constraint("Parallel", 3, 17))
sketch7.addConstraint(Sketcher.Constraint("Parallel", 0, 19))
sketch7.addConstraint(Sketcher.Constraint("Parallel", 9, 25))
sketch7.addConstraint(Sketcher.Constraint("Equal", 16, 26))
sketch7.addConstraint(Sketcher.Constraint("Equal", 9, 17))
sketch7.addConstraint(Sketcher.Constraint("Radius", 1, 1.0))
sketch7.addConstraint(Sketcher.Constraint("Radius", 20, 2.2))
sketch7.addConstraint(Sketcher.Constraint("DistanceY", 4, 1, 4, 2, 3.0))
sketch7.addConstraint(Sketcher.Constraint("Angle", 0, Q("20 deg")))
sketch7.addConstraint(Sketcher.Constraint("Angle", 3, Q("30 deg")))
sketch7.addConstraint(Sketcher.Constraint("DistanceX", 5, 2, 5, 1, 21.7))
sketch7.addConstraint(Sketcher.Constraint("DistanceX", 27, 2, 27, 1, 19.3))
sketch7.addConstraint(Sketcher.Constraint("DistanceY", 6, 2, 6, 1, 37.9))
sketch7.addConstraint(Sketcher.Constraint("DistanceY", 28, 1, 28, 2, 35.5))
sketch7.addConstraint(Sketcher.Constraint("DistanceX", 1, 3, -1, 1, 5.0))
sketch7.addConstraint(Sketcher.Constraint("DistanceX", 16, 2, -1, 1, 1.2))
sketch7.addConstraint(Sketcher.Constraint("DistanceY", 16, 2, 16, 1, 1.10718))
sketch7.addConstraint(Sketcher.Constraint("DistanceY", 18, 2, 18, 1, 9.197332))
sketch7.addConstraint(Sketcher.Constraint("DistanceY", 14, 1, 14, 2, 2.599585))
pad5 = body.newObject("PartDesign::Pad", "Pad004")
pad5.Profile = sketch7
pad5.Length = 8
pad5.Reversed = True

sketch8 = body.newObject("Sketcher::SketchObject", "Sketch007")
sketch8.AttachmentSupport = (doc.getObject("XZ_Plane"), [""])
sketch8.MapMode = "FlatFace"
sketch8.AttachmentOffset = App.Placement(V(0, 0, 10.8), App.Rotation())
add_polygon(sketch8, [(-1.2, 16.6), (-1.2, 17.8), (-5.2, 17.8), (-5.2, 14.3)])
sketch8.addGeometry(Part.Circle(V(-3.6, 16.6, 0), V(0, 0, 1), 0.6), False)
add_polygon(sketch8, [(-20.5, 13.8), (-16.5, 17.8), (-20.5, 17.8)])
sketch8.addGeometry(Part.Circle(V(-19.3, 16.6, 0), V(0, 0, 1), 0.6), False)
add_polygon(sketch8, [(-20.5, -13.8), (-20.5, -17.8), (-16.5, -17.8)])
sketch8.addGeometry(Part.Circle(V(-19.3, -16.6, 0), V(0, 0, 1), 0.6), False)
add_polygon(sketch8, [(-5.2, -14.3), (-5.2, -17.8), (-1.2, -17.8), (-1.2, -16.6)])
sketch8.addGeometry(Part.Circle(V(-3.6, -16.6, 0), V(0, 0, 1), 0.6), False)
sketch8.addConstraint(Sketcher.Constraint("Vertical", 0))
sketch8.addConstraint(Sketcher.Constraint("Horizontal", 1))
sketch8.addConstraint(Sketcher.Constraint("Vertical", 2))
sketch8.addConstraint(Sketcher.Constraint("Horizontal", 6))
sketch8.addConstraint(Sketcher.Constraint("Vertical", 7))
sketch8.addConstraint(Sketcher.Constraint("Vertical", 9))
sketch8.addConstraint(Sketcher.Constraint("Horizontal", 10))
sketch8.addConstraint(Sketcher.Constraint("Vertical", 13))
sketch8.addConstraint(Sketcher.Constraint("Horizontal", 14))
sketch8.addConstraint(Sketcher.Constraint("Vertical", 15))
sketch8.addConstraint(Sketcher.Constraint("Equal", 4, 8))
sketch8.addConstraint(Sketcher.Constraint("Equal", 8, 12))
sketch8.addConstraint(Sketcher.Constraint("Equal", 12, 17))
sketch8.addConstraint(Sketcher.Constraint("Symmetric", 8, 3, 12, 3, -1))
sketch8.addConstraint(Sketcher.Constraint("Symmetric", 4, 3, 17, 3, -1))
sketch8.addConstraint(Sketcher.Constraint("Symmetric", 6, 2, 9, 2, -1))
sketch8.addConstraint(Sketcher.Constraint("Symmetric", 1, 2, 13, 2, -1))
sketch8.addConstraint(Sketcher.Constraint("Symmetric", 3, 2, 15, 2, -1))
sketch8.addConstraint(Sketcher.Constraint("Perpendicular", 5, 11))
sketch8.addConstraint(Sketcher.Constraint("Horizontal", 4, 3, 8, 3))
sketch8.addConstraint(Sketcher.Constraint("Horizontal", 1, 2, 5, 2))
sketch8.addConstraint(Sketcher.Constraint("Vertical", 5, 2, 10, 2))
sketch8.addConstraint(Sketcher.Constraint("Equal", 1, 6))
sketch8.addConstraint(Sketcher.Constraint("Equal", 14, 7))
sketch8.addConstraint(Sketcher.Constraint("Equal", 2, 13))
sketch8.addConstraint(Sketcher.Constraint("Diameter", 4, 1.2))
sketch8.addConstraint(Sketcher.Constraint("DistanceX", 1, 2, 1, 1, 4.0))
sketch8.addConstraint(Sketcher.Constraint("Angle", 3, Q("30 deg")))
sketch8.addConstraint(Sketcher.Constraint("DistanceX", 4, 3, -1, 1, 3.6))
sketch8.addConstraint(Sketcher.Constraint("DistanceX", 8, 3, -1, 1, 19.3))
sketch8.addConstraint(Sketcher.Constraint("DistanceX", 0, 2, -1, 1, 1.2))
sketch8.addConstraint(Sketcher.Constraint("DistanceX", 5, 2, -1, 1, 16.5))
sketch8.addConstraint(Sketcher.Constraint("DistanceY", 12, 3, 8, 3, 33.1))
sketch8.addConstraint(Sketcher.Constraint("DistanceY", 4, 3, 0, 2, 1.2))
sketch8.addConstraint(Sketcher.Constraint("DistanceY", 0, 1, 0, 2, 1.10718))
pad6 = body.newObject("PartDesign::Pad", "Pad005")
pad6.Profile = sketch8
pad6.Length = 4
pad6.Reversed = True

doc.recompute()
